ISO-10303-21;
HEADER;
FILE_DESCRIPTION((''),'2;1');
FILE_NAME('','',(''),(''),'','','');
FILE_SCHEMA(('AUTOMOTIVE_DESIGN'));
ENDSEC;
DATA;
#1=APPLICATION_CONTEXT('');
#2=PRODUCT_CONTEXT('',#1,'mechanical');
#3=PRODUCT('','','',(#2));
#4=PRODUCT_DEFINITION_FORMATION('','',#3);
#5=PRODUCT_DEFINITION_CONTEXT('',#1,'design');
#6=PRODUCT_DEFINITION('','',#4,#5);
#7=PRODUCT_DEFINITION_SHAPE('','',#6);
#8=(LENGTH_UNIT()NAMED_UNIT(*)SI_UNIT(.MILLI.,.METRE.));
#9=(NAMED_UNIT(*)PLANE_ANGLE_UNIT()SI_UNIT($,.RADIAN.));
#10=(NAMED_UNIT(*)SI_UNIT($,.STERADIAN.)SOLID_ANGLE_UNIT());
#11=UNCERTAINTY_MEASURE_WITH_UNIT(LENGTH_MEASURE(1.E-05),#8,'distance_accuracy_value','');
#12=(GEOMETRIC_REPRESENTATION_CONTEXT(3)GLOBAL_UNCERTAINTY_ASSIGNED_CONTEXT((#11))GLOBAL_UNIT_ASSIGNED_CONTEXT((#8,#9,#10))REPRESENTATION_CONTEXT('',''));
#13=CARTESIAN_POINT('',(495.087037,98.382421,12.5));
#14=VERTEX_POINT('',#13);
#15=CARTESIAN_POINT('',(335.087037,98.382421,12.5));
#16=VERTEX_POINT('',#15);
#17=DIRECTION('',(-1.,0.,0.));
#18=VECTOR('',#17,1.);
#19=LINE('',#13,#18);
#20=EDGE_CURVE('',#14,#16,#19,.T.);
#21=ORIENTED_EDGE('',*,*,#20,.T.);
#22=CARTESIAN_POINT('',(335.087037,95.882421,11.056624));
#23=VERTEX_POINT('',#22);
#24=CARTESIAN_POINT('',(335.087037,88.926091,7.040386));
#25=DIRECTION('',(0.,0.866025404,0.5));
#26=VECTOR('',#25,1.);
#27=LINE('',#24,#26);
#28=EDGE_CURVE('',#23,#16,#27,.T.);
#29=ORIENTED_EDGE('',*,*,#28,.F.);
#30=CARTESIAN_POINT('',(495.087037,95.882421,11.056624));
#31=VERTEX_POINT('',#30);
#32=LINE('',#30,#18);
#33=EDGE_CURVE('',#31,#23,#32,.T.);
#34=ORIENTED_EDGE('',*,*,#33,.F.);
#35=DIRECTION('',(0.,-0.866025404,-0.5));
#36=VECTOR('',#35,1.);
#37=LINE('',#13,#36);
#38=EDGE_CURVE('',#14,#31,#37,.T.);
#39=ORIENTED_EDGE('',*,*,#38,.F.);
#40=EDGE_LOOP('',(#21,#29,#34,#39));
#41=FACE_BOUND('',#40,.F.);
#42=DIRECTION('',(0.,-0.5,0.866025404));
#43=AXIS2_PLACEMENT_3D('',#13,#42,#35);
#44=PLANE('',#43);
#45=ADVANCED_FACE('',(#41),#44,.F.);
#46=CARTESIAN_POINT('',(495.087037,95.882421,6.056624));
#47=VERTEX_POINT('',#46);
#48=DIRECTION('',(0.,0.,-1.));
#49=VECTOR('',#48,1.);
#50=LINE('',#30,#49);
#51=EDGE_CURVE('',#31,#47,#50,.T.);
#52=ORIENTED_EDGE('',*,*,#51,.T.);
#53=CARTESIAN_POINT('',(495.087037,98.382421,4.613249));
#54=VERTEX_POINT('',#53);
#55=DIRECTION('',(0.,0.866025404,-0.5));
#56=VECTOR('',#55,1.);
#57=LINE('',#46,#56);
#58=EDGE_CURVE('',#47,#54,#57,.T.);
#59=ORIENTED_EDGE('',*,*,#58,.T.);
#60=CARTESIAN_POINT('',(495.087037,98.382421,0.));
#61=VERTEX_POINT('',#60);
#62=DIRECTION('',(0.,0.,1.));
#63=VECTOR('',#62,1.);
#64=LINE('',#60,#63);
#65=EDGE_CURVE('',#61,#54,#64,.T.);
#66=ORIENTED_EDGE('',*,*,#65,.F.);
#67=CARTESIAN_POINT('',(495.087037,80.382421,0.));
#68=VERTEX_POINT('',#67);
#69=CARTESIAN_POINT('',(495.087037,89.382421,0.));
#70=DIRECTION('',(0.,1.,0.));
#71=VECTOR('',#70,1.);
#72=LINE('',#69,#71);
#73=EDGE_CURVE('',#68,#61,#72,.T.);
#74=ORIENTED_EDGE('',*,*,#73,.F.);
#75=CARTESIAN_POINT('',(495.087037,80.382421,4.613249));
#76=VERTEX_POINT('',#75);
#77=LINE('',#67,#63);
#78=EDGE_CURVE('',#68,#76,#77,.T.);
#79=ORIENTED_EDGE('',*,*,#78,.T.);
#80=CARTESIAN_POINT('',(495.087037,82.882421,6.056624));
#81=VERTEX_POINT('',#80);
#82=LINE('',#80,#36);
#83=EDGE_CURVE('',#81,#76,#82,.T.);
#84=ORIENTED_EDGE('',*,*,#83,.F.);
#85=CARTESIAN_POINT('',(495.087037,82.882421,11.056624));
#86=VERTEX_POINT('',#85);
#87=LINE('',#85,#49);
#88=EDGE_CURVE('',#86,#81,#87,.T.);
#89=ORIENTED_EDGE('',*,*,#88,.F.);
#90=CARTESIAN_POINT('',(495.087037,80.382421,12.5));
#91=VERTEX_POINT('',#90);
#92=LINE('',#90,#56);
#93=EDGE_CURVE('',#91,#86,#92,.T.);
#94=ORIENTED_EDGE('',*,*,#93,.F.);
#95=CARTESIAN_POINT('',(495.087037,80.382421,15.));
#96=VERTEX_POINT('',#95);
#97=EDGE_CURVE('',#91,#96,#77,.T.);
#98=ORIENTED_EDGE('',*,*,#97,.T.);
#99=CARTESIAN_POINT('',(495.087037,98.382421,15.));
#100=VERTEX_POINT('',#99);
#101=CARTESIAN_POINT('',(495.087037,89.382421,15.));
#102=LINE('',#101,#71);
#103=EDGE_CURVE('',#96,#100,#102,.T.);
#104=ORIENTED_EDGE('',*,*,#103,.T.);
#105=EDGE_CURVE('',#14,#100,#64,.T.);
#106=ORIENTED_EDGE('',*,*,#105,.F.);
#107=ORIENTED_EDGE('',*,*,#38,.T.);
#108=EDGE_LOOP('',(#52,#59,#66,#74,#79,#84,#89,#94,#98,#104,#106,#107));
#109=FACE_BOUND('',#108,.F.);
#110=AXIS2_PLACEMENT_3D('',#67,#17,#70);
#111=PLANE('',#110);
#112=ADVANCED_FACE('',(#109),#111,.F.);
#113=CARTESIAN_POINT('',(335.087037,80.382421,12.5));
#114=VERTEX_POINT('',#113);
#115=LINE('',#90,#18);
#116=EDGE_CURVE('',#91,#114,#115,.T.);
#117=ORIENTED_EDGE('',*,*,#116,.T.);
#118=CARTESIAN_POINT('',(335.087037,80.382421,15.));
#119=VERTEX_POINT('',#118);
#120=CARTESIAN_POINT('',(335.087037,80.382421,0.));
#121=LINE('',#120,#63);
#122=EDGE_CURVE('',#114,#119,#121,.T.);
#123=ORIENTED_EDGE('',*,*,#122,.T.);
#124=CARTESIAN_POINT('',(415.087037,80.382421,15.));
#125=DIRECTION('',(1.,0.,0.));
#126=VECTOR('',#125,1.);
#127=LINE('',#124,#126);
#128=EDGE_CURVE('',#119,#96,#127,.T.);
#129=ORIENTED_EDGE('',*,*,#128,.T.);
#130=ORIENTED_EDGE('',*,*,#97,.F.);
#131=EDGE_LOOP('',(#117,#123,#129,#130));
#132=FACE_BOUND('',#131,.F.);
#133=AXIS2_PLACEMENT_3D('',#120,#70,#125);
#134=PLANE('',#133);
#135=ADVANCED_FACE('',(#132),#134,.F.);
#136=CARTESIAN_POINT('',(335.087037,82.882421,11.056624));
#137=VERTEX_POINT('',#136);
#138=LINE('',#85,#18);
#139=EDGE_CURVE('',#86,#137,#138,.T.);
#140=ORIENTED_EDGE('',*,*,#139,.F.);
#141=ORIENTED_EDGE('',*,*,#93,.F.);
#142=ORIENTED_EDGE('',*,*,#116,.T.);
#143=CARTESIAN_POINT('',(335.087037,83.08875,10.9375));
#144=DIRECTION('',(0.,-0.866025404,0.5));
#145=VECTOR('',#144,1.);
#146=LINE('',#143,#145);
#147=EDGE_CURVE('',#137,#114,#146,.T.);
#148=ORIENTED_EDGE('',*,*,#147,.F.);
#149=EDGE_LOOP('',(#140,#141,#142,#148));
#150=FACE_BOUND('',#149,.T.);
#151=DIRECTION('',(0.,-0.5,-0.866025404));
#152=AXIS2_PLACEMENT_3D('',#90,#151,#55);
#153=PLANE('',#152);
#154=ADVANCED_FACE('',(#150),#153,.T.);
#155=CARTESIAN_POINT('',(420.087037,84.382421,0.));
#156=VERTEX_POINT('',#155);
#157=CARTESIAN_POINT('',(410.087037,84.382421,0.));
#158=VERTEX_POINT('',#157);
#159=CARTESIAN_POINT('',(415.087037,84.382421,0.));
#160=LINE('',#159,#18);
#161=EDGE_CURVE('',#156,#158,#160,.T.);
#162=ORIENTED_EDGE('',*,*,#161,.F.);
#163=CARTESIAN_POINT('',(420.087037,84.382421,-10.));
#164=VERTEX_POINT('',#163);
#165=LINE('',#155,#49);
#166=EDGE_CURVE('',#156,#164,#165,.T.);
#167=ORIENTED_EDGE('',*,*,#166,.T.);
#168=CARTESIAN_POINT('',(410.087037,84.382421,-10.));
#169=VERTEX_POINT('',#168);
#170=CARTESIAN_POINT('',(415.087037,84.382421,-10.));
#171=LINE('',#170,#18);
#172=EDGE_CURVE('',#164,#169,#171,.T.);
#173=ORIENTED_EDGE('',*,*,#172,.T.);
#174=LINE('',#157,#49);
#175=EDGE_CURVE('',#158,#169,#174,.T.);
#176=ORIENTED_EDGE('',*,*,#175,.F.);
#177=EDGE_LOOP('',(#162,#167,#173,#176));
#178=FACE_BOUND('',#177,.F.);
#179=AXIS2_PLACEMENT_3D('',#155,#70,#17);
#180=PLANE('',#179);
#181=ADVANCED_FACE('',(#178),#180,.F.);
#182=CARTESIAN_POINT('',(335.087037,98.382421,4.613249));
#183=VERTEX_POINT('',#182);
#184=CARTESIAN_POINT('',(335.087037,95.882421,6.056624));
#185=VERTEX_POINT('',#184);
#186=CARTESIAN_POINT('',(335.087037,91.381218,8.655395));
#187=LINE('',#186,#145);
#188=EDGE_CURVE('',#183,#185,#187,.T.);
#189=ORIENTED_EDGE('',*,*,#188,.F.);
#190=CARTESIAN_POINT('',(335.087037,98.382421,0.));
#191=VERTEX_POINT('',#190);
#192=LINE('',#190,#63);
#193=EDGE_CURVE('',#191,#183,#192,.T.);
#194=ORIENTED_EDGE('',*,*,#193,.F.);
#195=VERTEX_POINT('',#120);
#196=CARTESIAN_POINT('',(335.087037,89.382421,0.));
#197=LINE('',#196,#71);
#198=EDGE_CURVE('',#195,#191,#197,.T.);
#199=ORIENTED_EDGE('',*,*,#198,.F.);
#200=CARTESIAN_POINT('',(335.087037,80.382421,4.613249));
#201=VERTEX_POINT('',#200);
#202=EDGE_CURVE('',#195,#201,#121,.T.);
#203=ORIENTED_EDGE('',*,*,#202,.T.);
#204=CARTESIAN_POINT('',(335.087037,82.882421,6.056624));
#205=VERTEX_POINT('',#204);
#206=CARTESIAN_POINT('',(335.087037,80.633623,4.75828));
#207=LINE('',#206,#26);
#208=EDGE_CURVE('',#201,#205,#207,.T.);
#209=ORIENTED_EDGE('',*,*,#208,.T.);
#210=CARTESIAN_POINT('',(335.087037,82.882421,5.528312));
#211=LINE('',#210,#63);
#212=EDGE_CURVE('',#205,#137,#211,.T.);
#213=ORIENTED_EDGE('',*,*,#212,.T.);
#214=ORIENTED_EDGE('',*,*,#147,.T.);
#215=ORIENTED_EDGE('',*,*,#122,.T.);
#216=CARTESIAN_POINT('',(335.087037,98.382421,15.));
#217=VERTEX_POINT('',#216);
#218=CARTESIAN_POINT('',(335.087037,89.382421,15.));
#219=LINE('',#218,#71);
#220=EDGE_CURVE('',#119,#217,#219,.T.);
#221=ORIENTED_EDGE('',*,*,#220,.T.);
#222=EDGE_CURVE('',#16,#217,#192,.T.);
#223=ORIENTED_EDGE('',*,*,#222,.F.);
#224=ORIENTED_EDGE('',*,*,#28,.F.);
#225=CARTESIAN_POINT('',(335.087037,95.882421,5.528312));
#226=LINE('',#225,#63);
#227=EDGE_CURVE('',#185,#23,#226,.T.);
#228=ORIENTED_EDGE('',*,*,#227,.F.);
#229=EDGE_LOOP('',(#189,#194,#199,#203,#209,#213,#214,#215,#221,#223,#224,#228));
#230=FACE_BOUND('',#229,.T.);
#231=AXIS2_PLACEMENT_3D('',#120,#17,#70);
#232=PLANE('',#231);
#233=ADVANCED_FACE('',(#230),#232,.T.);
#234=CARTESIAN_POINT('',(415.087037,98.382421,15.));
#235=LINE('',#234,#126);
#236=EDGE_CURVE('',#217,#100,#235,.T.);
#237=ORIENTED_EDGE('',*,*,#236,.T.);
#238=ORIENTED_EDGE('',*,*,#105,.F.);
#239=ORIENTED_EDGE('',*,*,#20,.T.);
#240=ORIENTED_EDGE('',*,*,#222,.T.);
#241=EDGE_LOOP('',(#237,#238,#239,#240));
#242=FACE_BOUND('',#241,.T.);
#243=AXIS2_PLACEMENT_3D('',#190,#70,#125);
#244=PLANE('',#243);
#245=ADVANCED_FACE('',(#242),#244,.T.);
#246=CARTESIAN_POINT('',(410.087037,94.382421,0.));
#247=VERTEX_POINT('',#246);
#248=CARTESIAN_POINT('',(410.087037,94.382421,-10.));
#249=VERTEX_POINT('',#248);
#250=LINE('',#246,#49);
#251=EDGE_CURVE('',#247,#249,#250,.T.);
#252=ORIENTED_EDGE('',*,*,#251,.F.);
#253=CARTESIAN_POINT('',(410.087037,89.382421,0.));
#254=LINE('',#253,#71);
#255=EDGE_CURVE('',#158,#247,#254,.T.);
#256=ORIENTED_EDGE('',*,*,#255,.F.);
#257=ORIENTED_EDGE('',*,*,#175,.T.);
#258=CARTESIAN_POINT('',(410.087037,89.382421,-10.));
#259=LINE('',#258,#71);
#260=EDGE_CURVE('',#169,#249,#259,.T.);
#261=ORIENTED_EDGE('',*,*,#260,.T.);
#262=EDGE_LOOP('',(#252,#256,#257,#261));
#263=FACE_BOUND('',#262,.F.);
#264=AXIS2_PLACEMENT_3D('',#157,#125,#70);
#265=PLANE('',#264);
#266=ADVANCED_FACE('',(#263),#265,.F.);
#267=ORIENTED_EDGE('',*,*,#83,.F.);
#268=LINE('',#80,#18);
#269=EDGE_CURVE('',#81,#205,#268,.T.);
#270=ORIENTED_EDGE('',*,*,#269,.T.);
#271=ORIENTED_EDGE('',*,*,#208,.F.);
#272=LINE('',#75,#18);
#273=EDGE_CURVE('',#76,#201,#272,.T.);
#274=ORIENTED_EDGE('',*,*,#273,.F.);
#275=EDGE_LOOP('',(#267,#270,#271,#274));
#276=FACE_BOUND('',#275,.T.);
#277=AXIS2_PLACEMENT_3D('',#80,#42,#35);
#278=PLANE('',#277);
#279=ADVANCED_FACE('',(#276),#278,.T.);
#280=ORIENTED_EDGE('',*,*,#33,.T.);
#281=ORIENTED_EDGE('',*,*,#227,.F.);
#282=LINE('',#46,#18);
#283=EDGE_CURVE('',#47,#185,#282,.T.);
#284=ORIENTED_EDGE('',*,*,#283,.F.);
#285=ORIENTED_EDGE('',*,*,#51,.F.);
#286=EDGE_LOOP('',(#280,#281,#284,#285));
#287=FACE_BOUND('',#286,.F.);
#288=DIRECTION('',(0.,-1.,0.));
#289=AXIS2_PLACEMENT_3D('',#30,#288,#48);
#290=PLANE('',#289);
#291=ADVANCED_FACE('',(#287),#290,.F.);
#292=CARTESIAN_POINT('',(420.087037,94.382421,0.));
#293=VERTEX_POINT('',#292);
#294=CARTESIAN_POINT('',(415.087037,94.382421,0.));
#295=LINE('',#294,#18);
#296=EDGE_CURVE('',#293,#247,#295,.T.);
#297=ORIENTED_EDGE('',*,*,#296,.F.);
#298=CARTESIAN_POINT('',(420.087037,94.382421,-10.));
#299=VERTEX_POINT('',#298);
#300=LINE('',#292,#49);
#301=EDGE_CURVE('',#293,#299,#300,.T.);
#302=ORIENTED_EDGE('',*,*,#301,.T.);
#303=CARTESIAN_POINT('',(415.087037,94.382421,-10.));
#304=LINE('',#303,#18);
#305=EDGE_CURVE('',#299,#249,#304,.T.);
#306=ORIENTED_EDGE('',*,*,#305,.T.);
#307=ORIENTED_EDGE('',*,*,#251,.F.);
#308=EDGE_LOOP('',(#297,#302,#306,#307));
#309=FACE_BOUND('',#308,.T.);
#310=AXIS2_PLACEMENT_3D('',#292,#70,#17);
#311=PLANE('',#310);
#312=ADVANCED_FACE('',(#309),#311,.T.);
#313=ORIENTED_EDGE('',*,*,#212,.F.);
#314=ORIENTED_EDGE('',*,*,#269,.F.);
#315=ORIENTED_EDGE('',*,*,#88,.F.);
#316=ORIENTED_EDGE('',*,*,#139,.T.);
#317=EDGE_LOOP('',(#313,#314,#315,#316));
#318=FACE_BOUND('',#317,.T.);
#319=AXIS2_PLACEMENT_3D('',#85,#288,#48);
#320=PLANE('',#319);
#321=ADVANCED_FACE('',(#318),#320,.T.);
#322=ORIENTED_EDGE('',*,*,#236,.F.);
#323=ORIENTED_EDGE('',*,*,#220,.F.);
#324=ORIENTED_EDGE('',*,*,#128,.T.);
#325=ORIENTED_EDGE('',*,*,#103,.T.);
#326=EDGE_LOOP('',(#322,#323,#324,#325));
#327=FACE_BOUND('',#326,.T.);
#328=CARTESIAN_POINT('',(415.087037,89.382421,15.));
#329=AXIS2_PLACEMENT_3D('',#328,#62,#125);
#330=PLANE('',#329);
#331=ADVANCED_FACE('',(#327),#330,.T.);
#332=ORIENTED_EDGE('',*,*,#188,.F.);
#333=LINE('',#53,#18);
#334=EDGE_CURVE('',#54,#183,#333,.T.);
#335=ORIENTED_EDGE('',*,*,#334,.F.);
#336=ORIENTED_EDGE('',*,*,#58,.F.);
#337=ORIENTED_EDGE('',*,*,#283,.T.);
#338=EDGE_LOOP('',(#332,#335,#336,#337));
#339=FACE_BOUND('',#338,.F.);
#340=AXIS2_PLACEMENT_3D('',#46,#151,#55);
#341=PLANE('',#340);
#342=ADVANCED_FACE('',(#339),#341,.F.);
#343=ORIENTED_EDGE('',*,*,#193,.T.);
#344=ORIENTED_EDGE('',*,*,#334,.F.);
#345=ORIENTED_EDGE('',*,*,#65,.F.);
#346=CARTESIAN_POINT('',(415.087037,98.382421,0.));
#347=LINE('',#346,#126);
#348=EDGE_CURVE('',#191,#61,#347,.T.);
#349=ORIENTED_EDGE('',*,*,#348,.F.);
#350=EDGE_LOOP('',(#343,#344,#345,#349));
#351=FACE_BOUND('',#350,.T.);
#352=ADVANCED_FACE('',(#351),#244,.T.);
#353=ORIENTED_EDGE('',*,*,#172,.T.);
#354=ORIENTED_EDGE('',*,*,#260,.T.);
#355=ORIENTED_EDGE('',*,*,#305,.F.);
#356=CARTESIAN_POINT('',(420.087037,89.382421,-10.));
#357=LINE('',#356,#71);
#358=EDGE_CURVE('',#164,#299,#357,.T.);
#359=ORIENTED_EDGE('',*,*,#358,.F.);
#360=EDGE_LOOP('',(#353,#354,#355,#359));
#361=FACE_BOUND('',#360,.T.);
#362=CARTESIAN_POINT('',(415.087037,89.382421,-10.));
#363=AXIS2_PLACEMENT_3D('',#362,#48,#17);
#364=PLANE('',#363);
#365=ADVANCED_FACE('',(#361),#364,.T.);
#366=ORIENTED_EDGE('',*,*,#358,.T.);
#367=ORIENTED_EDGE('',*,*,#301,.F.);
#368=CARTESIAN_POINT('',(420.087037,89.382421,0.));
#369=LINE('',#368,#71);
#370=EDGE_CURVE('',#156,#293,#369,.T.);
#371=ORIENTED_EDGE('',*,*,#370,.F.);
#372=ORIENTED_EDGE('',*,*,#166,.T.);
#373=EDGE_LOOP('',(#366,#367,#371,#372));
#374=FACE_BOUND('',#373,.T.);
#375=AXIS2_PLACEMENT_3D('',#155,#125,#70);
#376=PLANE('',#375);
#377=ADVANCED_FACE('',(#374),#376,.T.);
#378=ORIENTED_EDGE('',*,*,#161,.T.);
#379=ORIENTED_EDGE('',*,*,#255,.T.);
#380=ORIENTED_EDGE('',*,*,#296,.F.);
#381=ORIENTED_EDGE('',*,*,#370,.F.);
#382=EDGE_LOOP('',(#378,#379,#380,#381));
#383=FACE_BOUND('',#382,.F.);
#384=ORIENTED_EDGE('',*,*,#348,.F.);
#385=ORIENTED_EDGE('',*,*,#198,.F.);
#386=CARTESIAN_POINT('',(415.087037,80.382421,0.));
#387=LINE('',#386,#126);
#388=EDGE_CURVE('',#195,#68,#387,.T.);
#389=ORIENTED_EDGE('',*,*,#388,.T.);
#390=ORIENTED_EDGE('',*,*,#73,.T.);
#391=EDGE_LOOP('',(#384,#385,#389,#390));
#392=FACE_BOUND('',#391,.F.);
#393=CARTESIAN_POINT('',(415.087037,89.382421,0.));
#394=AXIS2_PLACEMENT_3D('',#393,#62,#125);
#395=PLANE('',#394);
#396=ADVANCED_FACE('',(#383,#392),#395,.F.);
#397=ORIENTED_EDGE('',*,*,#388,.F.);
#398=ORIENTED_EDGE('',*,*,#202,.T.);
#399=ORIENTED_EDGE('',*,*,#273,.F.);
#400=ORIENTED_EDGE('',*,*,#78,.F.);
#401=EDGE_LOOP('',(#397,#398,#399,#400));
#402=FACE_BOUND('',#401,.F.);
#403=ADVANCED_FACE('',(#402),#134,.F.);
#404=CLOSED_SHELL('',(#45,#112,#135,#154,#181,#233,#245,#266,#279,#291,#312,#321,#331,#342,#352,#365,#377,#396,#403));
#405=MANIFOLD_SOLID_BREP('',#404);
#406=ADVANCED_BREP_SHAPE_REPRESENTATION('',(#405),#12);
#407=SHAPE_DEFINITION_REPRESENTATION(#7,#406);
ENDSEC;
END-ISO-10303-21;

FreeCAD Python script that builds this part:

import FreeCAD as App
import Part
import Sketcher

V = App.Vector
Q = App.Units.Quantity

doc = App.newDocument("Part")
body = doc.addObject("PartDesign::Body", "Body")

# Sketch on XY plane
sketch1 = body.newObject("Sketcher::SketchObject", "Sketch")
sketch1.AttachmentSupport = (doc.getObject("XY_Plane"), [""])
sketch1.MapMode = "FlatFace"
sketch1.addGeometry([
    Part.LineSegment(V(335.087037, 98.382421, 0), V(335.087037, 80.382421, 0)),
    Part.LineSegment(V(335.087037, 80.382421, 0), V(495.087037, 80.382421, 0)),
    Part.LineSegment(V(495.087037, 80.382421, 0), V(495.087037, 98.382421, 0)),
    Part.LineSegment(V(495.087037, 98.382421, 0), V(335.087037, 98.382421, 0)),
], False)
sketch1.addConstraint([
    Sketcher.Constraint("Coincident", 0, 2, 1, 1),
    Sketcher.Constraint("Coincident", 1, 2, 2, 1),
    Sketcher.Constraint("Coincident", 2, 2, 3, 1),
    Sketcher.Constraint("Coincident", 3, 2, 0, 1),
    Sketcher.Constraint("Vertical", 0),
    Sketcher.Constraint("Horizontal", 1),
    Sketcher.Constraint("Vertical", 2),
    Sketcher.Constraint("Horizontal", 3),
    Sketcher.Constraint("DistanceX", 1, 1, 1, 2, Q("160 mm")),
    Sketcher.Constraint("DistanceY", 0, 2, 0, 1, Q("18 mm")),
    Sketcher.Constraint("DistanceY", -1, 1, 0, 2, Q("80.382421 mm")),
    Sketcher.Constraint("DistanceX", -1, 1, 0, 2, Q("335.087037 mm")),
])
pad1 = body.newObject("PartDesign::Pad", "Pad")
pad1.Profile = sketch1
pad1.Length = 15

# Sketch on YZ plane
sketch2 = body.newObject("Sketcher::SketchObject", "Sketch001")
sketch2.AttachmentSupport = (doc.getObject("YZ_Plane"), [""])
sketch2.MapMode = "FlatFace"
sketch2.AttachmentOffset = App.Placement(V(0, 0, 495.087037), App.Rotation())
sketch2.addGeometry([
    Part.LineSegment(V(98.382421, 12.5, 0), V(95.882421, 11.056624, 0)),  # 0
    Part.LineSegment(V(95.882421, 11.056624, 0), V(95.882421, 6.056624, 0)),  # 1
    Part.LineSegment(V(95.882421, 6.056624, 0), V(98.382421, 4.613249, 0)),  # 2
    Part.LineSegment(V(98.382421, 4.613249, 0), V(98.382421, 12.5, 0)),  # 3
    Part.LineSegment(V(80.382421, 12.5, 0), V(80.382421, 4.613249, 0)),  # 4
    Part.LineSegment(V(80.382421, 4.613249, 0), V(82.882421, 6.056624, 0)),  # 5
    Part.LineSegment(V(82.882421, 6.056624, 0), V(82.882421, 11.056624, 0)),  # 6
    Part.LineSegment(V(82.882421, 11.056624, 0), V(80.382421, 12.5, 0)),  # 7
], False)
sketch2.addConstraint([
    Sketcher.Constraint("Coincident", 0, 2, 1, 1),
    Sketcher.Constraint("Coincident", 1, 2, 2, 1),
    Sketcher.Constraint("Coincident", 2, 2, 3, 1),
    Sketcher.Constraint("Coincident", 3, 2, 0, 1),
    Sketcher.Constraint("Coincident", 4, 2, 5, 1),
    Sketcher.Constraint("Coincident", 5, 2, 6, 1),
    Sketcher.Constraint("Coincident", 6, 2, 7, 1),
    Sketcher.Constraint("Coincident", 7, 2, 4, 1),
    Sketcher.Constraint("Vertical", 1),
    Sketcher.Constraint("Vertical", 3),
    Sketcher.Constraint("Vertical", 4),
    Sketcher.Constraint("Vertical", 6),
    Sketcher.Constraint("Parallel", 0, 5),
    Sketcher.Constraint("Parallel", 2, 7),
    Sketcher.Constraint("Horizontal", 2, 2, 4, 2),
    Sketcher.Constraint("Horizontal", 1, 2, 5, 2),
    Sketcher.Constraint("Horizontal", 0, 2, 6, 2),
    Sketcher.Constraint("Horizontal", 3, 2, 7, 2),
    Sketcher.Constraint("DistanceY", 1, 2, 1, 1, Q("5 mm")),
    Sketcher.Constraint("Angle", 0, Q("-150 deg")),
    Sketcher.Constraint("DistanceX", 4, 2, 2, 2, Q("18 mm")),
    Sketcher.Constraint("DistanceX", 5, 2, 1, 2, Q("13 mm")),
    Sketcher.Constraint("DistanceY", -1, 1, 3, 2, Q("12.5 mm")),
    Sketcher.Constraint("DistanceX", -1, 1, 0, 2, Q("95.882421 mm")),
])
pocket1 = body.newObject("PartDesign::Pocket", "Pocket")
pocket1.Profile = sketch2
pocket1.Type = "ThroughAll"

# Sketch on XY plane
sketch3 = body.newObject("Sketcher::SketchObject", "Sketch002")
sketch3.AttachmentSupport = (doc.getObject("XY_Plane"), [""])
sketch3.MapMode = "FlatFace"
sketch3.addGeometry([
    Part.LineSegment(V(420.087037, 94.382421, 0), V(420.087037, 84.382421, 0)),
    Part.LineSegment(V(420.087037, 84.382421, 0), V(410.087037, 84.382421, 0)),
    Part.LineSegment(V(410.087037, 84.382421, 0), V(410.087037, 94.382421, 0)),
    Part.LineSegment(V(410.087037, 94.382421, 0), V(420.087037, 94.382421, 0)),
], False)
sketch3.addConstraint([
    Sketcher.Constraint("Coincident", 0, 2, 1, 1),
    Sketcher.Constraint("Coincident", 1, 2, 2, 1),
    Sketcher.Constraint("Coincident", 2, 2, 3, 1),
    Sketcher.Constraint("Coincident", 3, 2, 0, 1),
    Sketcher.Constraint("Vertical", 0),
    Sketcher.Constraint("Horizontal", 1),
    Sketcher.Constraint("Vertical", 2),
    Sketcher.Constraint("Horizontal", 3),
    Sketcher.Constraint("Equal", 3, 0),
    Sketcher.Constraint("DistanceX", 1, 2, 1, 1, Q("10 mm")),
    Sketcher.Constraint("DistanceY", -1, 1, 0, 2, Q("84.382421 mm")),
    Sketcher.Constraint("DistanceX", -1, 1, 0, 2, Q("420.087037 mm")),
])
pad2 = body.newObject("PartDesign::Pad", "Pad001")
pad2.Profile = sketch3
pad2.Length = 10
pad2.Reversed = True

doc.recompute()
